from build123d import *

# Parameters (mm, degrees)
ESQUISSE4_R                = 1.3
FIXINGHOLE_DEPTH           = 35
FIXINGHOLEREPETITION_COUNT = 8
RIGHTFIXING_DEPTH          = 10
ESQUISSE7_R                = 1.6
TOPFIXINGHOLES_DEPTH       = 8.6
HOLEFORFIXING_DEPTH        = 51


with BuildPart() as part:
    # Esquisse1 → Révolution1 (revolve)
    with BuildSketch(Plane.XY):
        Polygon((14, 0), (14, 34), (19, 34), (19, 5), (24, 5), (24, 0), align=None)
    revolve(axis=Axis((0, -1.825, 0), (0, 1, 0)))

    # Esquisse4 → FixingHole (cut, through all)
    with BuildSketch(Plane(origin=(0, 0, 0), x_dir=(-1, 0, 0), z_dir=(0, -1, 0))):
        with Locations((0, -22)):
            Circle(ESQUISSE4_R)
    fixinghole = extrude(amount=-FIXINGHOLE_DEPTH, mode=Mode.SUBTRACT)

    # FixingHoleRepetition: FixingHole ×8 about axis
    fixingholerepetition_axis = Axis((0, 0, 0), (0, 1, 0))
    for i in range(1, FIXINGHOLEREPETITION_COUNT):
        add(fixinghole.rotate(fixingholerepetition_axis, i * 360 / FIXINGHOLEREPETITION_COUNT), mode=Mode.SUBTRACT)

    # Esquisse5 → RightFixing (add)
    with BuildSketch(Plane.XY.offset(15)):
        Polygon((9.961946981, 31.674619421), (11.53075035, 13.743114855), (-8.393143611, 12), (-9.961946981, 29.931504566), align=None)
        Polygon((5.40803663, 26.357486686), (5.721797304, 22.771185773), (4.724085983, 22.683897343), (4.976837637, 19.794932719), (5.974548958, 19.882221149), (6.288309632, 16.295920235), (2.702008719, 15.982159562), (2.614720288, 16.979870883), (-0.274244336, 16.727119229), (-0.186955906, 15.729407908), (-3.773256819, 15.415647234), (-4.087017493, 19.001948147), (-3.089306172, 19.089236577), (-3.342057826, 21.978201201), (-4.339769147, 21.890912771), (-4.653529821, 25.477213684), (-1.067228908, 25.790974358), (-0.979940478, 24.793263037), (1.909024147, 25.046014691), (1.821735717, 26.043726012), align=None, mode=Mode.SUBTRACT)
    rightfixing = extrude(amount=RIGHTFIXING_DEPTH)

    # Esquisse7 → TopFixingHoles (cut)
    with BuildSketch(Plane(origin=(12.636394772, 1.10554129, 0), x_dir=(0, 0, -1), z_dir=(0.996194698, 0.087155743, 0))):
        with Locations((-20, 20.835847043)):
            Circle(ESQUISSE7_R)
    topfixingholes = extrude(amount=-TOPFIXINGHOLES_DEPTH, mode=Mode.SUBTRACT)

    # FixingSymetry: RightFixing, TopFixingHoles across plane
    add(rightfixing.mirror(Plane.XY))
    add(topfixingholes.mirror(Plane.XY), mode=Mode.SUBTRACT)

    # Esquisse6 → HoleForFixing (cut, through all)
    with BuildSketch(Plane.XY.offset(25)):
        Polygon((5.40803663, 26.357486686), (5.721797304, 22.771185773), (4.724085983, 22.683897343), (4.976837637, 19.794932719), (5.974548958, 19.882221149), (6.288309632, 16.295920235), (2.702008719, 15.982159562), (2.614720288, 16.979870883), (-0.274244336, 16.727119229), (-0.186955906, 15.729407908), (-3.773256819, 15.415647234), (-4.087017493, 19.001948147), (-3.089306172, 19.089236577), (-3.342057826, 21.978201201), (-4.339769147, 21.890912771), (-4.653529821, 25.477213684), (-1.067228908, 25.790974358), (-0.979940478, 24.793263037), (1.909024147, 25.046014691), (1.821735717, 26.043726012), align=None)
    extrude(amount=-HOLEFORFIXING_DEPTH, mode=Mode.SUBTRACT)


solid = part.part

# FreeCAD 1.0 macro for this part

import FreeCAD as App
import Part
import Sketcher

V = App.Vector
Q = App.Units.Quantity

doc = App.newDocument("Part")
params = doc.addObject("Spreadsheet::Sheet", "Params")
for row, (alias, value) in enumerate([
    ("sketch1_width", "10 mm"),
    ("sketch1_height", "34 mm"),
    ("revolution_angle", "360 deg"),
    ("sketch2_diameter", "2.6 mm"),
    ("sketch3_length", "18 mm"),
    ("sketch3_length2", "20 mm"),
    ("sketch3_length3", "3.6 mm"),
    ("sketch3_length4", "2.9 mm"),
    ("pad1_length", "10 mm"),
    ("sketch4_diameter", "3.2 mm"),
    ("pocket2_length", "8.6 mm"),
    ("sketch5_length", "3.6 mm"),
    ("sketch5_length2", "2.9 mm"),
], start=1):
    params.set(f"A{row}", alias)
    params.set(f"B{row}", "=" + value)
    params.setAlias(f"B{row}", alias)

body = doc.addObject("PartDesign::Body", "Body")

# Sketch on XY plane
sketch1 = body.newObject("Sketcher::SketchObject", "Sketch")
sketch1.AttachmentSupport = (doc.getObject("XY_Plane"), [""])
sketch1.MapMode = "FlatFace"
sketch1.addGeometry([
    Part.LineSegment(V(14, 34, 0), V(14, 0, 0)),  # 0
    Part.LineSegment(V(14, 0, 0), V(24, 0, 0)),  # 1
    Part.LineSegment(V(24, 0, 0), V(24, 5, 0)),  # 2
    Part.LineSegment(V(24, 5, 0), V(19, 5, 0)),  # 3
    Part.LineSegment(V(19, 5, 0), V(19, 34, 0)),  # 4
    Part.LineSegment(V(19, 34, 0), V(14, 34, 0)),  # 5
], False)
sketch1.addConstraint([
    Sketcher.Constraint("Coincident", 0, 2, 1, 1),
    Sketcher.Constraint("Coincident", 1, 2, 2, 1),
    Sketcher.Constraint("Coincident", 2, 2, 3, 1),
    Sketcher.Constraint("Coincident", 3, 2, 4, 1),
    Sketcher.Constraint("Coincident", 4, 2, 5, 1),
    Sketcher.Constraint("Coincident", 5, 2, 0, 1),
    Sketcher.Constraint("Vertical", 0),
    Sketcher.Constraint("Horizontal", 1),
    Sketcher.Constraint("Vertical", 2),
    Sketcher.Constraint("Horizontal", 3),
    Sketcher.Constraint("Vertical", 4),
    Sketcher.Constraint("Horizontal", 5),
    Sketcher.Constraint("PointOnObject", 0, 2, -1),
    Sketcher.Constraint("Equal", 3, 5),
    Sketcher.Constraint("Equal", 5, 2),
    Sketcher.Constraint("DistanceX", 1, 1, 1, 2, 10.0),
    Sketcher.Constraint("DistanceY", 0, 2, 0, 1, 34.0),
    Sketcher.Constraint("DistanceX", -1, 1, 0, 2, 14.0),
])
sketch1.setExpression("Constraints[15]", "Params.sketch1_width")
sketch1.setExpression("Constraints[16]", "Params.sketch1_height")
revolution = body.newObject("PartDesign::Revolution", "Revolution")
revolution.Profile = sketch1
revolution.ReferenceAxis = (sketch1, ["V_Axis"])
revolution.setExpression("Angle", "Params.revolution_angle")

# Sketch on XZ plane
sketch2 = body.newObject("Sketcher::SketchObject", "Sketch001")
sketch2.AttachmentSupport = (doc.getObject("XZ_Plane"), [""])
sketch2.MapMode = "FlatFace"
sketch2.addGeometry(Part.Circle(V(0, 22, 0), V(0, 0, 1), 1.3), False)
sketch2.addConstraint([
    Sketcher.Constraint("PointOnObject", 0, 3, -2),
    Sketcher.Constraint("Diameter", 0, 2.6),
    Sketcher.Constraint("DistanceY", -1, 1, 0, 3, 22.0),
])
sketch2.setExpression("Constraints[1]", "Params.sketch2_diameter")
pocket1 = body.newObject("PartDesign::Pocket", "Pocket")
pocket1.Profile = sketch2
pocket1.Type = "ThroughAll"
doc.recompute()

polarpattern = body.newObject("PartDesign::PolarPattern", "PolarPattern")
polarpattern.Originals = [pocket1]
polarpattern.Axis = (doc.getObject("Y_Axis"), [""])
polarpattern.Angle = 360
polarpattern.Occurrences = 8
body.Tip = polarpattern

# Sketch on XY plane
sketch3 = body.newObject("Sketcher::SketchObject", "Sketch002")
sketch3.AttachmentSupport = (doc.getObject("XY_Plane"), [""])
sketch3.MapMode = "FlatFace"
sketch3.AttachmentOffset = App.Placement(V(0, 0, 15), App.Rotation())
sketch3.addGeometry([
    Part.LineSegment(V(11.53075, 13.743115, 0), V(9.961947, 31.674619, 0)),  # 0
    Part.LineSegment(V(9.961947, 31.674619, 0), V(-9.961947, 29.931505, 0)),  # 1
    Part.LineSegment(V(-9.961947, 29.931505, 0), V(-8.393144, 12, 0)),  # 2
    Part.LineSegment(V(-8.393144, 12, 0), V(11.53075, 13.743115, 0)),  # 3
    Part.LineSegment(V(5.408037, 26.357487, 0), V(5.721797, 22.771186, 0)),  # 4
    Part.LineSegment(V(5.721797, 22.771186, 0), V(4.724086, 22.683897, 0)),  # 5
    Part.LineSegment(V(4.724086, 22.683897, 0), V(4.976838, 19.794933, 0)),  # 6
    Part.LineSegment(V(4.976838, 19.794933, 0), V(5.974549, 19.882221, 0)),  # 7
    Part.LineSegment(V(5.974549, 19.882221, 0), V(6.28831, 16.29592, 0)),  # 8
    Part.LineSegment(V(6.28831, 16.29592, 0), V(2.702009, 15.98216, 0)),  # 9
    Part.LineSegment(V(2.702009, 15.98216, 0), V(2.61472, 16.979871, 0)),  # 10
    Part.LineSegment(V(2.61472, 16.979871, 0), V(-0.274244, 16.727119, 0)),  # 11
    Part.LineSegment(V(-0.274244, 16.727119, 0), V(-0.186956, 15.729408, 0)),  # 12
    Part.LineSegment(V(-0.186956, 15.729408, 0), V(-3.773257, 15.415647, 0)),  # 13
    Part.LineSegment(V(-3.773257, 15.415647, 0), V(-4.087017, 19.001948, 0)),  # 14
    Part.LineSegment(V(-4.087017, 19.001948, 0), V(-3.089306, 19.089237, 0)),  # 15
    Part.LineSegment(V(-3.089306, 19.089237, 0), V(-3.342058, 21.978201, 0)),  # 16
    Part.LineSegment(V(-3.342058, 21.978201, 0), V(-4.339769, 21.890913, 0)),  # 17
    Part.LineSegment(V(-4.339769, 21.890913, 0), V(-4.65353, 25.477214, 0)),  # 18
    Part.LineSegment(V(-4.65353, 25.477214, 0), V(-1.067229, 25.790974, 0)),  # 19
    Part.LineSegment(V(-1.067229, 25.790974, 0), V(-0.97994, 24.793263, 0)),  # 20
    Part.LineSegment(V(-0.97994, 24.793263, 0), V(1.909024, 25.046015, 0)),  # 21
    Part.LineSegment(V(1.909024, 25.046015, 0), V(1.821736, 26.043726, 0)),  # 22
    Part.LineSegment(V(1.821736, 26.043726, 0), V(5.408037, 26.357487, 0)),  # 23
], False)
sketch3.addConstraint([
    Sketcher.Constraint("Coincident", 0, 2, 1, 1),
    Sketcher.Constraint("Coincident", 1, 2, 2, 1),
    Sketcher.Constraint("Coincident", 2, 2, 3, 1),
    Sketcher.Constraint("Coincident", 3, 2, 0, 1),
    Sketcher.Constraint("Coincident", 4, 2, 5, 1),
    Sketcher.Constraint("Coincident", 5, 2, 6, 1),
    Sketcher.Constraint("Coincident", 6, 2, 7, 1),
    Sketcher.Constraint("Coincident", 7, 2, 8, 1),
    Sketcher.Constraint("Coincident", 8, 2, 9, 1),
    Sketcher.Constraint("Coincident", 9, 2, 10, 1),
    Sketcher.Constraint("Coincident", 10, 2, 11, 1),
    Sketcher.Constraint("Coincident", 11, 2, 12, 1),
    Sketcher.Constraint("Coincident", 12, 2, 13, 1),
    Sketcher.Constraint("Coincident", 13, 2, 14, 1),
    Sketcher.Constraint("Coincident", 14, 2, 15, 1),
    Sketcher.Constraint("Coincident", 15, 2, 16, 1),
    Sketcher.Constraint("Coincident", 16, 2, 17, 1),
    Sketcher.Constraint("Coincident", 17, 2, 18, 1),
    Sketcher.Constraint("Coincident", 18, 2, 19, 1),
    Sketcher.Constraint("Coincident", 19, 2, 20, 1),
    Sketcher.Constraint("Coincident", 20, 2, 21, 1),
    Sketcher.Constraint("Coincident", 21, 2, 22, 1),
    Sketcher.Constraint("Coincident", 22, 2, 23, 1),
    Sketcher.Constraint("Coincident", 23, 2, 4, 1),
    Sketcher.Constraint("Perpendicular", 0, 1),
    Sketcher.Constraint("Perpendicular", 1, 2),
    Sketcher.Constraint("Perpendicular", 2, 3),
    Sketcher.Constraint("Perpendicular", 3, 4),
    Sketcher.Constraint("Perpendicular", 4, 5),
    Sketcher.Constraint("Perpendicular", 5, 6),
    Sketcher.Constraint("Perpendicular", 6, 7),
    Sketcher.Constraint("Perpendicular", 7, 8),
    Sketcher.Constraint("Perpendicular", 8, 9),
    Sketcher.Constraint("Perpendicular", 9, 10),
    Sketcher.Constraint("Perpendicular", 10, 11),
    Sketcher.Constraint("Perpendicular", 11, 12),
    Sketcher.Constraint("Perpendicular", 12, 13),
    Sketcher.Constraint("Perpendicular", 13, 14),
    Sketcher.Constraint("Perpendicular", 14, 15),
    Sketcher.Constraint("Perpendicular", 15, 16),
    Sketcher.Constraint("Perpendicular", 16, 17),
    Sketcher.Constraint("Perpendicular", 17, 18),
    Sketcher.Constraint("Perpendicular", 18, 19),
    Sketcher.Constraint("Perpendicular", 19, 20),
    Sketcher.Constraint("Perpendicular", 20, 21),
    Sketcher.Constraint("Perpendicular", 21, 22),
    Sketcher.Constraint("Perpendicular", 22, 23),
    Sketcher.Constraint("Equal", 5, 7),
    Sketcher.Constraint("Equal", 4, 8),
    Sketcher.Constraint("Equal", 8, 9),
    Sketcher.Constraint("Equal", 7, 10),
    Sketcher.Constraint("Equal", 6, 11),
    Sketcher.Constraint("Equal", 10, 12),
    Sketcher.Constraint("Equal", 9, 13),
    Sketcher.Constraint("Equal", 13, 14),
    Sketcher.Constraint("Equal", 12, 15),
    Sketcher.Constraint("Equal", 11, 16),
    Sketcher.Constraint("Equal", 15, 17),
    Sketcher.Constraint("Equal", 14, 18),
    Sketcher.Constraint("Equal", 18, 19),
    Sketcher.Constraint("Equal", 17, 20),
    Sketcher.Constraint("Equal", 16, 21),
    Sketcher.Constraint("Angle", 0, Q("95 deg")),
    Sketcher.Constraint("Distance", 0, 18.0),
    Sketcher.Constraint("Distance", 1, 20.0),
    Sketcher.Constraint("DistanceY", -1, 1, 2, 2, 12.0),
    Sketcher.Constraint("Distance", 4, 3.6),
    Sketcher.Constraint("Distance", 6, 2.9),
    Sketcher.Constraint("DistanceY", -1, 1, 16, 2, 21.978201),
    Sketcher.Constraint("DistanceX", 7, 2, 3, 2, 5.556201),
    Sketcher.Constraint("DistanceY", 7, 2, 0, 2, 11.792398),
    Sketcher.Constraint("DistanceX", -1, 1, 3, 2, 11.53075),
])
sketch3.setExpression("Constraints[63]", "Params.sketch3_length")
sketch3.setExpression("Constraints[64]", "Params.sketch3_length2")
sketch3.setExpression("Constraints[66]", "Params.sketch3_length3")
sketch3.setExpression("Constraints[67]", "Params.sketch3_length4")
pad1 = body.newObject("PartDesign::Pad", "Pad")
pad1.Profile = sketch3
pad1.setExpression("Length", "Params.pad1_length")

# Sketch on an angled plane
sketch4 = body.newObject("Sketcher::SketchObject", "Sketch003")
sketch4.Placement = App.Placement(V(12.636395, 1.105541, 0), App.Rotation(V(0, 0, -1), V(-0.087155743, 0.996194698, 0), V(0.996194698, 0.087155743, 0), "ZXY"))
sketch4.addGeometry(Part.Circle(V(-20, 20.835847, 0), V(0, 0, 1), 1.6), False)
sketch4.addConstraint([
    Sketcher.Constraint("Diameter", 0, 3.2),
    Sketcher.Constraint("DistanceX", 0, 3, -1, 1, 20.0),
    Sketcher.Constraint("DistanceY", -1, 1, 0, 3, 20.835847),
])
sketch4.setExpression("Constraints[0]", "Params.sketch4_diameter")
pocket2 = body.newObject("PartDesign::Pocket", "Pocket001")
pocket2.Profile = sketch4
pocket2.setExpression("Length", "Params.pocket2_length")
doc.recompute()

mirrored = body.newObject("PartDesign::Mirrored", "Mirrored")
mirrored.Originals = [pad1, pocket2]
mirrored.MirrorPlane = (doc.getObject("XY_Plane"), [""])
body.Tip = mirrored

# Sketch on XY plane
sketch5 = body.newObject("Sketcher::SketchObject", "Sketch004")
sketch5.AttachmentSupport = (doc.getObject("XY_Plane"), [""])
sketch5.MapMode = "FlatFace"
sketch5.AttachmentOffset = App.Placement(V(0, 0, 25), App.Rotation())
sketch5.addGeometry([
    Part.LineSegment(V(5.721797, 22.771186, 0), V(5.408037, 26.357487, 0)),  # 0
    Part.LineSegment(V(5.408037, 26.357487, 0), V(1.821736, 26.043726, 0)),  # 1
    Part.LineSegment(V(1.821736, 26.043726, 0), V(1.909024, 25.046015, 0)),  # 2
    Part.LineSegment(V(1.909024, 25.046015, 0), V(-0.97994, 24.793263, 0)),  # 3
    Part.LineSegment(V(-0.97994, 24.793263, 0), V(-1.067229, 25.790974, 0)),  # 4
    Part.LineSegment(V(-1.067229, 25.790974, 0), V(-4.65353, 25.477214, 0)),  # 5
    Part.LineSegment(V(-4.65353, 25.477214, 0), V(-4.339769, 21.890913, 0)),  # 6
    Part.LineSegment(V(-4.339769, 21.890913, 0), V(-3.342058, 21.978201, 0)),  # 7
    Part.LineSegment(V(-3.342058, 21.978201, 0), V(-3.089306, 19.089237, 0)),  # 8
    Part.LineSegment(V(-3.089306, 19.089237, 0), V(-4.087017, 19.001948, 0)),  # 9
    Part.LineSegment(V(-4.087017, 19.001948, 0), V(-3.773257, 15.415647, 0)),  # 10
    Part.LineSegment(V(-3.773257, 15.415647, 0), V(-0.186956, 15.729408, 0)),  # 11
    Part.LineSegment(V(-0.186956, 15.729408, 0), V(-0.274244, 16.727119, 0)),  # 12
    Part.LineSegment(V(-0.274244, 16.727119, 0), V(2.61472, 16.979871, 0)),  # 13
    Part.LineSegment(V(2.61472, 16.979871, 0), V(2.702009, 15.98216, 0)),  # 14
    Part.LineSegment(V(2.702009, 15.98216, 0), V(6.28831, 16.29592, 0)),  # 15
    Part.LineSegment(V(6.28831, 16.29592, 0), V(5.974549, 19.882221, 0)),  # 16
    Part.LineSegment(V(5.974549, 19.882221, 0), V(4.976838, 19.794933, 0)),  # 17
    Part.LineSegment(V(4.976838, 19.794933, 0), V(4.724086, 22.683897, 0)),  # 18
    Part.LineSegment(V(4.724086, 22.683897, 0), V(5.721797, 22.771186, 0)),  # 19
], False)
sketch5.addConstraint([
    Sketcher.Constraint("Coincident", 0, 2, 1, 1),
    Sketcher.Constraint("Coincident", 1, 2, 2, 1),
    Sketcher.Constraint("Coincident", 2, 2, 3, 1),
    Sketcher.Constraint("Coincident", 3, 2, 4, 1),
    Sketcher.Constraint("Coincident", 4, 2, 5, 1),
    Sketcher.Constraint("Coincident", 5, 2, 6, 1),
    Sketcher.Constraint("Coincident", 6, 2, 7, 1),
    Sketcher.Constraint("Coincident", 7, 2, 8, 1),
    Sketcher.Constraint("Coincident", 8, 2, 9, 1),
    Sketcher.Constraint("Coincident", 9, 2, 10, 1),
    Sketcher.Constraint("Coincident", 10, 2, 11, 1),
    Sketcher.Constraint("Coincident", 11, 2, 12, 1),
    Sketcher.Constraint("Coincident", 12, 2, 13, 1),
    Sketcher.Constraint("Coincident", 13, 2, 14, 1),
    Sketcher.Constraint("Coincident", 14, 2, 15, 1),
    Sketcher.Constraint("Coincident", 15, 2, 16, 1),
    Sketcher.Constraint("Coincident", 16, 2, 17, 1),
    Sketcher.Constraint("Coincident", 17, 2, 18, 1),
    Sketcher.Constraint("Coincident", 18, 2, 19, 1),
    Sketcher.Constraint("Coincident", 19, 2, 0, 1),
    Sketcher.Constraint("Perpendicular", 0, 1),
    Sketcher.Constraint("Perpendicular", 1, 2),
    Sketcher.Constraint("Perpendicular", 2, 3),
    Sketcher.Constraint("Perpendicular", 3, 4),
    Sketcher.Constraint("Perpendicular", 4, 5),
    Sketcher.Constraint("Perpendicular", 5, 6),
    Sketcher.Constraint("Perpendicular", 6, 7),
    Sketcher.Constraint("Perpendicular", 7, 8),
    Sketcher.Constraint("Perpendicular", 8, 9),
    Sketcher.Constraint("Perpendicular", 9, 10),
    Sketcher.Constraint("Perpendicular", 10, 11),
    Sketcher.Constraint("Perpendicular", 11, 12),
    Sketcher.Constraint("Perpendicular", 12, 13),
    Sketcher.Constraint("Perpendicular", 13, 14),
    Sketcher.Constraint("Perpendicular", 14, 15),
    Sketcher.Constraint("Perpendicular", 15, 16),
    Sketcher.Constraint("Perpendicular", 16, 17),
    Sketcher.Constraint("Perpendicular", 17, 18),
    Sketcher.Constraint("Perpendicular", 18, 19),
    Sketcher.Constraint("Equal", 0, 1),
    Sketcher.Constraint("Equal", 2, 4),
    Sketcher.Constraint("Equal", 1, 5),
    Sketcher.Constraint("Equal", 5, 6),
    Sketcher.Constraint("Equal", 4, 7),
    Sketcher.Constraint("Equal", 3, 8),
    Sketcher.Constraint("Equal", 7, 9),
    Sketcher.Constraint("Equal", 6, 10),
    Sketcher.Constraint("Equal", 10, 11),
    Sketcher.Constraint("Equal", 9, 12),
    Sketcher.Constraint("Equal", 8, 13),
    Sketcher.Constraint("Equal", 12, 14),
    Sketcher.Constraint("Equal", 11, 15),
    Sketcher.Constraint("Equal", 15, 16),
    Sketcher.Constraint("Equal", 14, 17),
    Sketcher.Constraint("Angle", 0, Q("95 deg")),
    Sketcher.Constraint("Distance", 0, 3.6),
    Sketcher.Constraint("Distance", 3, 2.9),
    Sketcher.Constraint("DistanceY", -1, 1, 7, 2, 21.978201),
    Sketcher.Constraint("DistanceY", 2, 2, 5, 2, 0.431199),
    Sketcher.Constraint("DistanceX", 3, 2, -1, 1, 0.97994),
])
sketch5.setExpression("Constraints[55]", "Params.sketch5_length")
sketch5.setExpression("Constraints[56]", "Params.sketch5_length2")
pocket3 = body.newObject("PartDesign::Pocket", "Pocket002")
pocket3.Profile = sketch5
pocket3.Type = "ThroughAll"

doc.recompute()
